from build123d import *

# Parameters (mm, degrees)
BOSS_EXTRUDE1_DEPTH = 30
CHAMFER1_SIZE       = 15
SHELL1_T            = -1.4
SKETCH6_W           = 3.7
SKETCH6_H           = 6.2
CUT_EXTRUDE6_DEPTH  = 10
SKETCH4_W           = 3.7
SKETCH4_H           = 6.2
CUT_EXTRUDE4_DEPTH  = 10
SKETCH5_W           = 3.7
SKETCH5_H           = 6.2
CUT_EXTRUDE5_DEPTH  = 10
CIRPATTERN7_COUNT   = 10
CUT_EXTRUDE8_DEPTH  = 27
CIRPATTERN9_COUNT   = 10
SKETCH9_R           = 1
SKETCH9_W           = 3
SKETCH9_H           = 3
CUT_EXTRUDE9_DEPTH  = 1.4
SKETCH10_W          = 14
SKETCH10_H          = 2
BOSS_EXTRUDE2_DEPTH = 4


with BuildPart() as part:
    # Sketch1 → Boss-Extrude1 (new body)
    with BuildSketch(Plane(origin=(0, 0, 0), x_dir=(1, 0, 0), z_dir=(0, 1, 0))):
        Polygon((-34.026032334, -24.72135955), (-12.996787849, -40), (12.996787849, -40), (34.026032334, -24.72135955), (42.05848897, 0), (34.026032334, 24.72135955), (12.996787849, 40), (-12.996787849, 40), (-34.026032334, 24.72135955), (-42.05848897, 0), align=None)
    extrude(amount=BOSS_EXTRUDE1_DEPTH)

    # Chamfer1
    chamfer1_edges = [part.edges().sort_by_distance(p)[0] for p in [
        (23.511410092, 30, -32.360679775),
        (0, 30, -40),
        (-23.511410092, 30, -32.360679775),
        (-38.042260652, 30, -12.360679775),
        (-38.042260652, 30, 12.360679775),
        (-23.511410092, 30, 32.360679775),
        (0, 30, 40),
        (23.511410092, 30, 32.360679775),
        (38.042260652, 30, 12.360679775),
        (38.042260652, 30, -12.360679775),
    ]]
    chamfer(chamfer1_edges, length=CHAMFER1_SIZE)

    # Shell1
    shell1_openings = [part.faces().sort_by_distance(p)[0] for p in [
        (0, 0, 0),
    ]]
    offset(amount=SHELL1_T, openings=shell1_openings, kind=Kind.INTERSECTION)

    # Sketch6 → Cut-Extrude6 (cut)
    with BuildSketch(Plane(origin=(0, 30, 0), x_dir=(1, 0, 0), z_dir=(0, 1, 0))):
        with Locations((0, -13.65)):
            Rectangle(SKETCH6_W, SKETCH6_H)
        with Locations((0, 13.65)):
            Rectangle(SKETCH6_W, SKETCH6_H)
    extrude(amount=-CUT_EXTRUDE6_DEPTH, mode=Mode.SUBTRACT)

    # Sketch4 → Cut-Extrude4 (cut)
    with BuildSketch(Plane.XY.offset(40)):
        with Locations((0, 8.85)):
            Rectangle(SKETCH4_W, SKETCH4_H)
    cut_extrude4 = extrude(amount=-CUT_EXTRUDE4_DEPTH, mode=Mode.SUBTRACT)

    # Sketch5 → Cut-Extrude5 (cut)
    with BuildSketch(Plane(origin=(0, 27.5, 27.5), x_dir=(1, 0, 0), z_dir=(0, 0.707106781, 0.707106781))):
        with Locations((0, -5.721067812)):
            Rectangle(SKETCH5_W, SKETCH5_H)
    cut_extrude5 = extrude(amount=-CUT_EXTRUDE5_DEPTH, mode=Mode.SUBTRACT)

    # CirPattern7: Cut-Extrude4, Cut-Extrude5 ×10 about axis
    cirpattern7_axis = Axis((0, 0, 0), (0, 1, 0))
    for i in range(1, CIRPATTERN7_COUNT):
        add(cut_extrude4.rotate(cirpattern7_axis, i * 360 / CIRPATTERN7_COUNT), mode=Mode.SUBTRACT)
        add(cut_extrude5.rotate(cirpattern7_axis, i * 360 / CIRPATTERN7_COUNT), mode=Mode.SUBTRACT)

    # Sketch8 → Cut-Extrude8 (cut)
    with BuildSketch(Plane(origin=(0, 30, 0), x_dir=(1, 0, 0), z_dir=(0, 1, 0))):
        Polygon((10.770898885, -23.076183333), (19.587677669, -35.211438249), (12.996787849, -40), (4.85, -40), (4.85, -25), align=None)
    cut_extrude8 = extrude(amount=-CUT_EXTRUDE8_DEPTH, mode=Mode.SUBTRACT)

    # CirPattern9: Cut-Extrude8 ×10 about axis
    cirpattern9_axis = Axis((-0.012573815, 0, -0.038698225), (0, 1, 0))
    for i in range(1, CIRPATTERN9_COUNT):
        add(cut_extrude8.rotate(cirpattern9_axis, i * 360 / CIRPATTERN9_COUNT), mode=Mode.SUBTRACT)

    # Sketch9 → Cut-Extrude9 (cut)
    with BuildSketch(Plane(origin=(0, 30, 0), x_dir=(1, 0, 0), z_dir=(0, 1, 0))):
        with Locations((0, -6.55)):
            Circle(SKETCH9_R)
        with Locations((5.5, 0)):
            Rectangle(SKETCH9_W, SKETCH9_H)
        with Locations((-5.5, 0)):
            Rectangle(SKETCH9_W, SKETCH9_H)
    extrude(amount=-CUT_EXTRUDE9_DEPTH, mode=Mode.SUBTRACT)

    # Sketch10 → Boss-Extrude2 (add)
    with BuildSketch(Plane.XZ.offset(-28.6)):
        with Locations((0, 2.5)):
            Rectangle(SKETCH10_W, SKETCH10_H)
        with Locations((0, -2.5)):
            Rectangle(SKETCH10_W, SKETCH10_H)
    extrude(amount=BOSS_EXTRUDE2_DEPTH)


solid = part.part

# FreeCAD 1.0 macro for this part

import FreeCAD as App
import Part
import Sketcher
Q = App.Units.Quantity


def edges_at(feature, points):
    """Names of the edges that pass closest to the given points."""
    edges = feature.Shape.Edges
    near = lambda p: min(range(len(edges)), key=lambda i: edges[i].distToShape(Part.Vertex(*p))[0])
    return sorted({f"Edge{near(p) + 1}" for p in points})


def faces_at(feature, points):
    """Names of the faces that lie closest to the given points."""
    faces = feature.Shape.Faces
    near = lambda p: min(range(len(faces)), key=lambda i: faces[i].distToShape(Part.Vertex(*p))[0])
    return sorted({f"Face{near(p) + 1}" for p in points})


def add_polygon(sketch, points):
    """Adds a closed chain of lines whose ends are joined by coincident constraints."""
    first, n = sketch.GeometryCount, len(points)
    for a, b in zip(points, points[1:] + points[:1]):
        sketch.addGeometry(Part.LineSegment(App.Vector(*a, 0), App.Vector(*b, 0)), False)
    for i in range(n):
        sketch.addConstraint(Sketcher.Constraint("Coincident", first + i, 2, first + (i + 1) % n, 1))

doc = App.newDocument("Part")
params = doc.addObject("Spreadsheet::Sheet", "Params")
for row, (alias, value) in enumerate([
    ("pad1_length", "30 mm"),
    ("chamfer_size", "15 mm"),
    ("thickness_wall", "1.4 mm"),
    ("sketch2_width", "3.7 mm"),
    ("sketch2_height", "6.2 mm"),
    ("pocket1_length", "10 mm"),
    ("sketch3_width", "3.7 mm"),
    ("sketch3_height", "6.2 mm"),
    ("pocket2_length", "10 mm"),
    ("sketch4_width", "3.7 mm"),
    ("sketch4_height", "6.2 mm"),
    ("pocket3_length", "10 mm"),
    ("sketch5_height", "15 mm"),
    ("sketch5_length", "15 mm"),
    ("pocket4_length", "27 mm"),
    ("sketch6_diameter", "2 mm"),
    ("sketch6_width", "3 mm"),
    ("pocket5_length", "1.4 mm"),
    ("sketch7_width", "14 mm"),
    ("sketch7_height", "2 mm"),
    ("pad2_length", "4 mm"),
], start=1):
    params.set(f"A{row}", alias)
    params.set(f"B{row}", "=" + value)
    params.setAlias(f"B{row}", alias)

body = doc.addObject("PartDesign::Body", "Body")

sketch1 = body.newObject("Sketcher::SketchObject", "Sketch")
sketch1.AttachmentSupport = (doc.getObject("XZ_Plane"), [""])
sketch1.MapMode = "FlatFace"
add_polygon(sketch1, [(-34, 25), (-13, 40), (13, 40), (34, 25), (42, 0), (34, -25), (13, -40), (-13, -40), (-34, -25), (-42, 0)])
sketch1.addConstraint([
    Sketcher.Constraint("Horizontal", 1),
    Sketcher.Constraint("Horizontal", 6),
    Sketcher.Constraint("Symmetric", 0, 2, 5, 2, -1, 1),
    Sketcher.Constraint("Symmetric", 2, 2, 7, 2, -1, 1),
    Sketcher.Constraint("Symmetric", 3, 2, 8, 2, -1, 1),
    Sketcher.Constraint("Symmetric", 4, 2, 9, 2, -1, 1),
    Sketcher.Constraint("Symmetric", 4, 2, 7, 2, -2),
    Sketcher.Constraint("PointOnObject", 3, 2, -1),
    Sketcher.Constraint("Parallel", 2, 7),
    Sketcher.Constraint("Vertical", 1, 2, 5, 2),
    Sketcher.Constraint("Equal", 2, 3),
    Sketcher.Constraint("Angle", 0, Q("36 deg")),
    Sketcher.Constraint("Angle", 3, Q("-72 deg")),
    Sketcher.Constraint("DistanceY", -1, 1, 0, 2, Q("40 mm")),
    Sketcher.Constraint("DistanceX", 1, 1, 1, 2, Q("25.993576 mm")),
])
pad1 = body.newObject("PartDesign::Pad", "Pad")
pad1.Profile = sketch1
pad1.setExpression("Length", "Params.pad1_length")
pad1.Reversed = True
doc.recompute()

chamfer = body.newObject("PartDesign::Chamfer", "Chamfer")
chamfer.Base = (pad1, edges_at(pad1, [
    (23.511, 30, -32.361),
    (0, 30, -40),
    (-23.511, 30, -32.361),
    (-38.042, 30, -12.361),
    (-38.042, 30, 12.361),
    (-23.511, 30, 32.361),
    (0, 30, 40),
    (23.511, 30, 32.361),
    (38.042, 30, 12.361),
    (38.042, 30, -12.361),
]))
chamfer.setExpression("Size", "Params.chamfer_size")
doc.recompute()

thickness = body.newObject("PartDesign::Thickness", "Thickness")
thickness.Base = (chamfer, faces_at(chamfer, [(0, 0, 0)]))
thickness.setExpression("Value", "Params.thickness_wall")
thickness.Reversed = True
thickness.Join = "Intersection"

sketch2 = body.newObject("Sketcher::SketchObject", "Sketch001")
sketch2.AttachmentSupport = (doc.getObject("XZ_Plane"), [""])
sketch2.MapMode = "FlatFace"
sketch2.AttachmentOffset = App.Placement(App.Vector(0, 0, -30), App.Rotation())
add_polygon(sketch2, [(-1.9, 10.6), (-1.9, 16.8), (1.9, 16.8), (1.9, 10.6)])
add_polygon(sketch2, [(-1.9, -16.8), (-1.9, -10.6), (1.9, -10.6), (1.9, -16.8)])
sketch2.addConstraint([
    Sketcher.Constraint("Vertical", 0),
    Sketcher.Constraint("Horizontal", 1),
    Sketcher.Constraint("Vertical", 2),
    Sketcher.Constraint("Horizontal", 3),
    Sketcher.Constraint("Vertical", 4),
    Sketcher.Constraint("Horizontal", 5),
    Sketcher.Constraint("Vertical", 6),
    Sketcher.Constraint("Horizontal", 7),
    Sketcher.Constraint("Symmetric", 2, 2, 4, 2, -1, 1),
    Sketcher.Constraint("Symmetric", 0, 2, 6, 2, -1, 1),
    Sketcher.Constraint("Vertical", 3, 2, 4, 2),
    Sketcher.Constraint("DistanceX", 1, 1, 1, 2, Q("3.7 mm")),
    Sketcher.Constraint("DistanceY", 0, 1, 0, 2, Q("6.2 mm")),
    Sketcher.Constraint("DistanceY", 4, 2, 3, 2, Q("21.1 mm")),
])
sketch2.setExpression("Constraints[19]", "Params.sketch2_width")
sketch2.setExpression("Constraints[20]", "Params.sketch2_height")
pocket1 = body.newObject("PartDesign::Pocket", "Pocket")
pocket1.Profile = sketch2
pocket1.setExpression("Length", "Params.pocket1_length")
pocket1.Reversed = True

sketch3 = body.newObject("Sketcher::SketchObject", "Sketch002")
sketch3.AttachmentSupport = (doc.getObject("XY_Plane"), [""])
sketch3.MapMode = "FlatFace"
sketch3.AttachmentOffset = App.Placement(App.Vector(0, 0, 40), App.Rotation())
add_polygon(sketch3, [(-1.9, 11.9), (-1.9, 5.8), (1.9, 5.8), (1.9, 11.9)])
sketch3.addConstraint([
    Sketcher.Constraint("Vertical", 0),
    Sketcher.Constraint("Horizontal", 1),
    Sketcher.Constraint("Vertical", 2),
    Sketcher.Constraint("Horizontal", 3),
    Sketcher.Constraint("DistanceX", 1, 1, 1, 2, Q("3.7 mm")),
    Sketcher.Constraint("DistanceY", 0, 2, 0, 1, Q("6.2 mm")),
    Sketcher.Constraint("DistanceX", 0, 2, -1, 1, Q("1.85 mm")),
    Sketcher.Constraint("DistanceY", -1, 1, 0, 2, Q("5.75 mm")),
])
sketch3.setExpression("Constraints[8]", "Params.sketch3_width")
sketch3.setExpression("Constraints[9]", "Params.sketch3_height")
pocket2 = body.newObject("PartDesign::Pocket", "Pocket001")
pocket2.Profile = sketch3
pocket2.setExpression("Length", "Params.pocket2_length")

sketch4 = body.newObject("Sketcher::SketchObject", "Sketch003")
sketch4.Placement = App.Placement(App.Vector(0, 27.5, 27.5), App.Rotation(App.Vector(1, 0, 0), App.Vector(0, 0.707106781, -0.707106781), App.Vector(0, 0.707106781, 0.707106781), "ZXY"))
add_polygon(sketch4, [(-1.9, -2.6), (-1.9, -8.8), (1.9, -8.8), (1.9, -2.6)])
sketch4.addConstraint([
    Sketcher.Constraint("Vertical", 0),
    Sketcher.Constraint("Horizontal", 1),
    Sketcher.Constraint("Vertical", 2),
    Sketcher.Constraint("Horizontal", 3),
    Sketcher.Constraint("DistanceX", 1, 1, 1, 2, Q("3.7 mm")),
    Sketcher.Constraint("DistanceY", 0, 2, 0, 1, Q("6.2 mm")),
    Sketcher.Constraint("DistanceX", 0, 2, -1, 1, Q("1.85 mm")),
    Sketcher.Constraint("DistanceY", 0, 2, -1, 1, Q("8.821068 mm")),
])
sketch4.setExpression("Constraints[8]", "Params.sketch4_width")
sketch4.setExpression("Constraints[9]", "Params.sketch4_height")
pocket3 = body.newObject("PartDesign::Pocket", "Pocket002")
pocket3.Profile = sketch4
pocket3.setExpression("Length", "Params.pocket3_length")
doc.recompute()

polarpattern = body.newObject("PartDesign::PolarPattern", "PolarPattern")
polarpattern.Originals = [pocket2, pocket3]
polarpattern.Axis = (doc.getObject("Y_Axis"), [""])
polarpattern.Angle = 360
polarpattern.Occurrences = 10
body.Tip = polarpattern

sketch5 = body.newObject("Sketcher::SketchObject", "Sketch004")
sketch5.AttachmentSupport = (doc.getObject("XZ_Plane"), [""])
sketch5.MapMode = "FlatFace"
sketch5.AttachmentOffset = App.Placement(App.Vector(0, 0, -30), App.Rotation())
add_polygon(sketch5, [(20, 35), (11, 23), (5, 25), (5, 40), (13, 40)])
sketch5.addConstraint([
    Sketcher.Constraint("Vertical", 2),
    Sketcher.Constraint("Horizontal", 3),
    Sketcher.Constraint("Perpendicular", 0, 4),
    Sketcher.Constraint("DistanceY", 2, 1, 2, 2, Q("15 mm")),
    Sketcher.Constraint("Angle", 0, Q("-126 deg")),
    Sketcher.Constraint("Angle", 1, Q("162 deg")),
    Sketcher.Constraint("Distance", 0, Q("15 mm")),
    Sketcher.Constraint("DistanceY", -1, 1, 1, 2, Q("25 mm")),
    Sketcher.Constraint("DistanceX", -1, 1, 1, 2, Q("4.85 mm")),
    Sketcher.Constraint("Distance", 1, Q("6.225602 mm")),
])
sketch5.setExpression("Constraints[8]", "Params.sketch5_height")
sketch5.setExpression("Constraints[11]", "Params.sketch5_length")
pocket4 = body.newObject("PartDesign::Pocket", "Pocket003")
pocket4.Profile = sketch5
pocket4.setExpression("Length", "Params.pocket4_length")
pocket4.Reversed = True
doc.recompute()

datumline = body.newObject("PartDesign::Line", "DatumLine")
datumline.Placement = App.Placement(App.Vector(-0.012574, 0, -0.038698), App.Rotation(App.Vector(0, 0, 1), App.Vector(0, 1, 0)))
polarpattern2 = body.newObject("PartDesign::PolarPattern", "PolarPattern001")
polarpattern2.Originals = [pocket4]
polarpattern2.Axis = (datumline, [""])
polarpattern2.Angle = 360
polarpattern2.Occurrences = 10
body.Tip = polarpattern2

sketch6 = body.newObject("Sketcher::SketchObject", "Sketch005")
sketch6.AttachmentSupport = (doc.getObject("XZ_Plane"), [""])
sketch6.MapMode = "FlatFace"
sketch6.AttachmentOffset = App.Placement(App.Vector(0, 0, -30), App.Rotation())
sketch6.addGeometry(Part.Circle(App.Vector(0, 6.5, 0), App.Vector(0, 0, 1), 1), False)
add_polygon(sketch6, [(4, -1.5), (4, 1.5), (7, 1.5), (7, -1.5)])
add_polygon(sketch6, [(-7, -1.5), (-7, 1.5), (-4, 1.5), (-4, -1.5)])
sketch6.addConstraint([
    Sketcher.Constraint("Vertical", 1),
    Sketcher.Constraint("Horizontal", 2),
    Sketcher.Constraint("Vertical", 3),
    Sketcher.Constraint("Horizontal", 4),
    Sketcher.Constraint("Vertical", 5),
    Sketcher.Constraint("Horizontal", 6),
    Sketcher.Constraint("Vertical", 7),
    Sketcher.Constraint("Horizontal", 8),
    Sketcher.Constraint("Symmetric", 3, 2, 5, 2, -1, 1),
    Sketcher.Constraint("Symmetric", 1, 2, 7, 2, -1, 1),
    Sketcher.Constraint("PointOnObject", 0, 3, -2),
    Sketcher.Constraint("Horizontal", 2, 2, 5, 2),
    Sketcher.Constraint("Equal", 8, 1),
    Sketcher.Constraint("Diameter", 0, Q("2 mm")),
    Sketcher.Constraint("DistanceX", 2, 1, 2, 2, Q("3 mm")),
    Sketcher.Constraint("DistanceX", -1, 1, 1, 2, Q("4 mm")),
    Sketcher.Constraint("DistanceY", -1, 1, 0, 3, Q("6.55 mm")),
])
sketch6.setExpression("Constraints[21]", "Params.sketch6_diameter")
sketch6.setExpression("Constraints[22]", "Params.sketch6_width")
pocket5 = body.newObject("PartDesign::Pocket", "Pocket004")
pocket5.Profile = sketch6
pocket5.setExpression("Length", "Params.pocket5_length")
pocket5.Reversed = True

sketch7 = body.newObject("Sketcher::SketchObject", "Sketch006")
sketch7.AttachmentSupport = (doc.getObject("XZ_Plane"), [""])
sketch7.MapMode = "FlatFace"
sketch7.AttachmentOffset = App.Placement(App.Vector(0, 0, -28.6), App.Rotation())
add_polygon(sketch7, [(-7, 3.5), (-7, 1.5), (7, 1.5), (7, 3.5)])
add_polygon(sketch7, [(-7, -1.5), (-7, -3.5), (7, -3.5), (7, -1.5)])
sketch7.addConstraint([
    Sketcher.Constraint("Vertical", 0),
    Sketcher.Constraint("Horizontal", 1),
    Sketcher.Constraint("Vertical", 2),
    Sketcher.Constraint("Horizontal", 3),
    Sketcher.Constraint("Vertical", 4),
    Sketcher.Constraint("Horizontal", 5),
    Sketcher.Constraint("Vertical", 6),
    Sketcher.Constraint("Horizontal", 7),
    Sketcher.Constraint("Symmetric", 2, 2, 4, 2, -1, 1),
    Sketcher.Constraint("Symmetric", 0, 2, 6, 2, -1, 1),
    Sketcher.Constraint("Vertical", 3, 2, 4, 2),
    Sketcher.Constraint("DistanceX", 1, 1, 1, 2, Q("14 mm")),
    Sketcher.Constraint("DistanceY", 0, 2, 0, 1, Q("2 mm")),
    Sketcher.Constraint("DistanceY", 4, 2, 0, 2, Q("5 mm")),
])
sketch7.setExpression("Constraints[19]", "Params.sketch7_width")
sketch7.setExpression("Constraints[20]", "Params.sketch7_height")
pad2 = body.newObject("PartDesign::Pad", "Pad001")
pad2.Profile = sketch7
pad2.setExpression("Length", "Params.pad2_length")

doc.recompute()
